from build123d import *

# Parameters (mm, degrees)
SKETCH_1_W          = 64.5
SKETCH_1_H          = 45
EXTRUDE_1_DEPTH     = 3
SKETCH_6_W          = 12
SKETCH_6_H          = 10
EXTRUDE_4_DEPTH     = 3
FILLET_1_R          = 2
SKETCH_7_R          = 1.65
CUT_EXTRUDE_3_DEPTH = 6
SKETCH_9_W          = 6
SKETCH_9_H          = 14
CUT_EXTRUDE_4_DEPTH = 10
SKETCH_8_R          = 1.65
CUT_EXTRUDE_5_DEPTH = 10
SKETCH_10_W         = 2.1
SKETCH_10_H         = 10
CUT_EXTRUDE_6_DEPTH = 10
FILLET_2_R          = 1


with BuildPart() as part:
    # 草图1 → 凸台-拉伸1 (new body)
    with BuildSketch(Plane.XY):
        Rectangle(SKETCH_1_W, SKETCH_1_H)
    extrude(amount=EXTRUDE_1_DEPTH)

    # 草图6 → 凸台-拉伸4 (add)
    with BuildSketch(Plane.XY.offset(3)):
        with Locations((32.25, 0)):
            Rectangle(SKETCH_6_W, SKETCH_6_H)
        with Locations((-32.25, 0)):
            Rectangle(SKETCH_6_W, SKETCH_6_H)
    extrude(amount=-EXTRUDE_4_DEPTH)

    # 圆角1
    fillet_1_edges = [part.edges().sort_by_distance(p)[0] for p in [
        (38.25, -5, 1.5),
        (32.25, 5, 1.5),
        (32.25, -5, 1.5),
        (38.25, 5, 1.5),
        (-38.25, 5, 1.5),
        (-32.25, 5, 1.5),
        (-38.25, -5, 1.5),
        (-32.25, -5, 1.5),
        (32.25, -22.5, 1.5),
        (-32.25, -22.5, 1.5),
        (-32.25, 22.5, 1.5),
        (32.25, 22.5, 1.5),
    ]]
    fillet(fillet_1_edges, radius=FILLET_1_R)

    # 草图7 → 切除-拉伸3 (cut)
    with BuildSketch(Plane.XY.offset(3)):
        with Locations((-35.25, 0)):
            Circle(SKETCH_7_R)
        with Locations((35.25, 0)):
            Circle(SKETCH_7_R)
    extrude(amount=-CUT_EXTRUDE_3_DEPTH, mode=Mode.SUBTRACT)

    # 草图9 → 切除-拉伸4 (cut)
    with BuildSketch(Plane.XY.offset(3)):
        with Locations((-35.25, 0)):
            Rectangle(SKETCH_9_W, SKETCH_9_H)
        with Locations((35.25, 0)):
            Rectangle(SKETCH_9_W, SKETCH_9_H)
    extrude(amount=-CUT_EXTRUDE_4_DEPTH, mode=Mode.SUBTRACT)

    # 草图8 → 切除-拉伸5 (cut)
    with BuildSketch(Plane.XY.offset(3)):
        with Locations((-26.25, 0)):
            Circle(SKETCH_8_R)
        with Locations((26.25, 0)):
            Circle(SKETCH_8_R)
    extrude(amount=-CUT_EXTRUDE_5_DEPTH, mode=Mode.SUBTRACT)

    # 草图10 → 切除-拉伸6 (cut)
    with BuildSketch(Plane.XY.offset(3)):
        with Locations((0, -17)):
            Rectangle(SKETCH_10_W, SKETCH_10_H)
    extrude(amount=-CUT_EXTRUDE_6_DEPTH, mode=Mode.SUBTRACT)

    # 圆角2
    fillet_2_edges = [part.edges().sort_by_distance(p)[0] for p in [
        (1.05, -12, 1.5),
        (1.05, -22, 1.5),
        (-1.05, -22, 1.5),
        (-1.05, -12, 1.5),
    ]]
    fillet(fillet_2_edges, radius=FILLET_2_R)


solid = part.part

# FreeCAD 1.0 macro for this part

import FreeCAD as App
import Part
import Sketcher


def edges_at(feature, points):
    """Names of the edges that pass closest to the given points."""
    edges = feature.Shape.Edges
    near = lambda p: min(range(len(edges)), key=lambda i: edges[i].distToShape(Part.Vertex(*p))[0])
    return sorted({f"Edge{near(p) + 1}" for p in points})


def add_polygon(sketch, points):
    """Adds a closed chain of lines whose ends are joined by coincident constraints."""
    first, n = sketch.GeometryCount, len(points)
    for a, b in zip(points, points[1:] + points[:1]):
        sketch.addGeometry(Part.LineSegment(App.Vector(*a, 0), App.Vector(*b, 0)), False)
    for i in range(n):
        sketch.addConstraint(Sketcher.Constraint("Coincident", first + i, 2, first + (i + 1) % n, 1))

doc = App.newDocument("Part")
body = doc.addObject("PartDesign::Body", "Body")

sketch1 = body.newObject("Sketcher::SketchObject", "Sketch")
sketch1.AttachmentSupport = (doc.getObject("XY_Plane"), [""])
sketch1.MapMode = "FlatFace"
add_polygon(sketch1, [(-32, 22), (-32, -22), (32, -22), (32, 22)])
sketch1.addConstraint([
    Sketcher.Constraint("Vertical", 0),
    Sketcher.Constraint("Horizontal", 1),
    Sketcher.Constraint("Vertical", 2),
    Sketcher.Constraint("Horizontal", 3),
    Sketcher.Constraint("Symmetric", 0, 2, 2, 2, -1, 1),
    Sketcher.Constraint("DistanceY", 0, 2, 0, 1, 45.0),
    Sketcher.Constraint("DistanceX", 1, 1, 1, 2, 64.5),
])
pad1 = body.newObject("PartDesign::Pad", "Pad")
pad1.Profile = sketch1
pad1.Length = 3

sketch2 = body.newObject("Sketcher::SketchObject", "Sketch001")
sketch2.AttachmentSupport = (doc.getObject("XY_Plane"), [""])
sketch2.MapMode = "FlatFace"
sketch2.AttachmentOffset = App.Placement(App.Vector(0, 0, 3), App.Rotation())
add_polygon(sketch2, [(26, 5), (26, -5), (38, -5), (38, 5)])
add_polygon(sketch2, [(-38, 5), (-38, -5), (-26, -5), (-26, 5)])
sketch2.addConstraint([
    Sketcher.Constraint("Vertical", 0),
    Sketcher.Constraint("Horizontal", 1),
    Sketcher.Constraint("Vertical", 2),
    Sketcher.Constraint("Horizontal", 3),
    Sketcher.Constraint("Vertical", 4),
    Sketcher.Constraint("Horizontal", 5),
    Sketcher.Constraint("Vertical", 6),
    Sketcher.Constraint("Horizontal", 7),
    Sketcher.Constraint("Symmetric", 2, 2, 4, 2, -1, 1),
    Sketcher.Constraint("Symmetric", 0, 2, 6, 2, -1, 1),
    Sketcher.Constraint("Horizontal", 1, 2, 4, 2),
    Sketcher.Constraint("DistanceX", 1, 1, 1, 2, 12.0),
    Sketcher.Constraint("DistanceY", 0, 2, 0, 1, 10.0),
    Sketcher.Constraint("DistanceX", 4, 2, 0, 2, 64.5),
])
pad2 = body.newObject("PartDesign::Pad", "Pad001")
pad2.Profile = sketch2
pad2.Length = 3
pad2.Reversed = True
doc.recompute()

fillet = body.newObject("PartDesign::Fillet", "Fillet")
fillet.Base = (pad2, edges_at(pad2, [
    (38.25, -5, 1.5),
    (32.25, 5, 1.5),
    (32.25, -5, 1.5),
    (38.25, 5, 1.5),
    (-38.25, 5, 1.5),
    (-32.25, 5, 1.5),
    (-38.25, -5, 1.5),
    (-32.25, -5, 1.5),
    (32.25, -22.5, 1.5),
    (-32.25, -22.5, 1.5),
    (-32.25, 22.5, 1.5),
    (32.25, 22.5, 1.5),
]))
fillet.Radius = 2

sketch3 = body.newObject("Sketcher::SketchObject", "Sketch002")
sketch3.AttachmentSupport = (doc.getObject("XY_Plane"), [""])
sketch3.MapMode = "FlatFace"
sketch3.AttachmentOffset = App.Placement(App.Vector(0, 0, 3), App.Rotation())
sketch3.addGeometry([
    Part.Circle(App.Vector(-35.2, 0, 0), App.Vector(0, 0, 1), 1.6),
    Part.Circle(App.Vector(35.2, 0, 0), App.Vector(0, 0, 1), 1.6),
], False)
sketch3.addConstraint([
    Sketcher.Constraint("Equal", 0, 1),
    Sketcher.Constraint("Symmetric", 0, 3, 1, 3, -1, 1),
    Sketcher.Constraint("PointOnObject", 0, 3, -1),
    Sketcher.Constraint("Diameter", 0, 3.3),
    Sketcher.Constraint("DistanceX", 0, 3, 1, 3, 70.5),
])
pocket1 = body.newObject("PartDesign::Pocket", "Pocket")
pocket1.Profile = sketch3
pocket1.Length = 6

sketch4 = body.newObject("Sketcher::SketchObject", "Sketch003")
sketch4.AttachmentSupport = (doc.getObject("XY_Plane"), [""])
sketch4.MapMode = "FlatFace"
sketch4.AttachmentOffset = App.Placement(App.Vector(0, 0, 3), App.Rotation())
add_polygon(sketch4, [(-38, 7), (-38, -7), (-32, -7), (-32, 7)])
add_polygon(sketch4, [(32, 7), (32, -7), (38, -7), (38, 7)])
sketch4.addConstraint([
    Sketcher.Constraint("Vertical", 0),
    Sketcher.Constraint("Horizontal", 1),
    Sketcher.Constraint("Vertical", 2),
    Sketcher.Constraint("Horizontal", 3),
    Sketcher.Constraint("Vertical", 4),
    Sketcher.Constraint("Horizontal", 5),
    Sketcher.Constraint("Vertical", 6),
    Sketcher.Constraint("Horizontal", 7),
    Sketcher.Constraint("Symmetric", 2, 2, 4, 2, -1, 1),
    Sketcher.Constraint("Symmetric", 0, 2, 6, 2, -1, 1),
    Sketcher.Constraint("Horizontal", 1, 2, 4, 2),
    Sketcher.Constraint("DistanceX", 1, 1, 1, 2, 6.0),
    Sketcher.Constraint("DistanceY", 0, 2, 0, 1, 14.0),
    Sketcher.Constraint("DistanceX", 1, 2, 4, 2, 64.5),
])
pocket2 = body.newObject("PartDesign::Pocket", "Pocket001")
pocket2.Profile = sketch4
pocket2.Length = 10

sketch5 = body.newObject("Sketcher::SketchObject", "Sketch004")
sketch5.AttachmentSupport = (doc.getObject("XY_Plane"), [""])
sketch5.MapMode = "FlatFace"
sketch5.AttachmentOffset = App.Placement(App.Vector(0, 0, 3), App.Rotation())
sketch5.addGeometry([
    Part.Circle(App.Vector(-26.2, 0, 0), App.Vector(0, 0, 1), 1.6),
    Part.Circle(App.Vector(26.2, 0, 0), App.Vector(0, 0, 1), 1.6),
], False)
sketch5.addConstraint([
    Sketcher.Constraint("Equal", 0, 1),
    Sketcher.Constraint("Symmetric", 0, 3, 1, 3, -1, 1),
    Sketcher.Constraint("PointOnObject", 0, 3, -1),
    Sketcher.Constraint("Diameter", 0, 3.3),
    Sketcher.Constraint("DistanceX", 0, 3, 1, 3, 52.5),
])
pocket3 = body.newObject("PartDesign::Pocket", "Pocket002")
pocket3.Profile = sketch5
pocket3.Length = 10

sketch6 = body.newObject("Sketcher::SketchObject", "Sketch005")
sketch6.AttachmentSupport = (doc.getObject("XY_Plane"), [""])
sketch6.MapMode = "FlatFace"
sketch6.AttachmentOffset = App.Placement(App.Vector(0, 0, 3), App.Rotation())
add_polygon(sketch6, [(-1.1, -12), (-1.1, -22), (1.1, -22), (1.1, -12)])
sketch6.addConstraint([
    Sketcher.Constraint("Vertical", 0),
    Sketcher.Constraint("Horizontal", 1),
    Sketcher.Constraint("Vertical", 2),
    Sketcher.Constraint("Horizontal", 3),
    Sketcher.Constraint("DistanceY", 0, 2, 0, 1, 10.0),
    Sketcher.Constraint("DistanceX", 1, 1, 1, 2, 2.1),
    Sketcher.Constraint("DistanceY", 0, 2, -1, 1, 22.0),
    Sketcher.Constraint("DistanceX", 0, 2, -1, 1, 1.05),
])
pocket4 = body.newObject("PartDesign::Pocket", "Pocket003")
pocket4.Profile = sketch6
pocket4.Length = 10
doc.recompute()

fillet2 = body.newObject("PartDesign::Fillet", "Fillet001")
fillet2.Base = (pocket4, edges_at(pocket4, [
    (1.05, -12, 1.5),
    (1.05, -22, 1.5),
    (-1.05, -22, 1.5),
    (-1.05, -12, 1.5),
]))
fillet2.Radius = 1

doc.recompute()
